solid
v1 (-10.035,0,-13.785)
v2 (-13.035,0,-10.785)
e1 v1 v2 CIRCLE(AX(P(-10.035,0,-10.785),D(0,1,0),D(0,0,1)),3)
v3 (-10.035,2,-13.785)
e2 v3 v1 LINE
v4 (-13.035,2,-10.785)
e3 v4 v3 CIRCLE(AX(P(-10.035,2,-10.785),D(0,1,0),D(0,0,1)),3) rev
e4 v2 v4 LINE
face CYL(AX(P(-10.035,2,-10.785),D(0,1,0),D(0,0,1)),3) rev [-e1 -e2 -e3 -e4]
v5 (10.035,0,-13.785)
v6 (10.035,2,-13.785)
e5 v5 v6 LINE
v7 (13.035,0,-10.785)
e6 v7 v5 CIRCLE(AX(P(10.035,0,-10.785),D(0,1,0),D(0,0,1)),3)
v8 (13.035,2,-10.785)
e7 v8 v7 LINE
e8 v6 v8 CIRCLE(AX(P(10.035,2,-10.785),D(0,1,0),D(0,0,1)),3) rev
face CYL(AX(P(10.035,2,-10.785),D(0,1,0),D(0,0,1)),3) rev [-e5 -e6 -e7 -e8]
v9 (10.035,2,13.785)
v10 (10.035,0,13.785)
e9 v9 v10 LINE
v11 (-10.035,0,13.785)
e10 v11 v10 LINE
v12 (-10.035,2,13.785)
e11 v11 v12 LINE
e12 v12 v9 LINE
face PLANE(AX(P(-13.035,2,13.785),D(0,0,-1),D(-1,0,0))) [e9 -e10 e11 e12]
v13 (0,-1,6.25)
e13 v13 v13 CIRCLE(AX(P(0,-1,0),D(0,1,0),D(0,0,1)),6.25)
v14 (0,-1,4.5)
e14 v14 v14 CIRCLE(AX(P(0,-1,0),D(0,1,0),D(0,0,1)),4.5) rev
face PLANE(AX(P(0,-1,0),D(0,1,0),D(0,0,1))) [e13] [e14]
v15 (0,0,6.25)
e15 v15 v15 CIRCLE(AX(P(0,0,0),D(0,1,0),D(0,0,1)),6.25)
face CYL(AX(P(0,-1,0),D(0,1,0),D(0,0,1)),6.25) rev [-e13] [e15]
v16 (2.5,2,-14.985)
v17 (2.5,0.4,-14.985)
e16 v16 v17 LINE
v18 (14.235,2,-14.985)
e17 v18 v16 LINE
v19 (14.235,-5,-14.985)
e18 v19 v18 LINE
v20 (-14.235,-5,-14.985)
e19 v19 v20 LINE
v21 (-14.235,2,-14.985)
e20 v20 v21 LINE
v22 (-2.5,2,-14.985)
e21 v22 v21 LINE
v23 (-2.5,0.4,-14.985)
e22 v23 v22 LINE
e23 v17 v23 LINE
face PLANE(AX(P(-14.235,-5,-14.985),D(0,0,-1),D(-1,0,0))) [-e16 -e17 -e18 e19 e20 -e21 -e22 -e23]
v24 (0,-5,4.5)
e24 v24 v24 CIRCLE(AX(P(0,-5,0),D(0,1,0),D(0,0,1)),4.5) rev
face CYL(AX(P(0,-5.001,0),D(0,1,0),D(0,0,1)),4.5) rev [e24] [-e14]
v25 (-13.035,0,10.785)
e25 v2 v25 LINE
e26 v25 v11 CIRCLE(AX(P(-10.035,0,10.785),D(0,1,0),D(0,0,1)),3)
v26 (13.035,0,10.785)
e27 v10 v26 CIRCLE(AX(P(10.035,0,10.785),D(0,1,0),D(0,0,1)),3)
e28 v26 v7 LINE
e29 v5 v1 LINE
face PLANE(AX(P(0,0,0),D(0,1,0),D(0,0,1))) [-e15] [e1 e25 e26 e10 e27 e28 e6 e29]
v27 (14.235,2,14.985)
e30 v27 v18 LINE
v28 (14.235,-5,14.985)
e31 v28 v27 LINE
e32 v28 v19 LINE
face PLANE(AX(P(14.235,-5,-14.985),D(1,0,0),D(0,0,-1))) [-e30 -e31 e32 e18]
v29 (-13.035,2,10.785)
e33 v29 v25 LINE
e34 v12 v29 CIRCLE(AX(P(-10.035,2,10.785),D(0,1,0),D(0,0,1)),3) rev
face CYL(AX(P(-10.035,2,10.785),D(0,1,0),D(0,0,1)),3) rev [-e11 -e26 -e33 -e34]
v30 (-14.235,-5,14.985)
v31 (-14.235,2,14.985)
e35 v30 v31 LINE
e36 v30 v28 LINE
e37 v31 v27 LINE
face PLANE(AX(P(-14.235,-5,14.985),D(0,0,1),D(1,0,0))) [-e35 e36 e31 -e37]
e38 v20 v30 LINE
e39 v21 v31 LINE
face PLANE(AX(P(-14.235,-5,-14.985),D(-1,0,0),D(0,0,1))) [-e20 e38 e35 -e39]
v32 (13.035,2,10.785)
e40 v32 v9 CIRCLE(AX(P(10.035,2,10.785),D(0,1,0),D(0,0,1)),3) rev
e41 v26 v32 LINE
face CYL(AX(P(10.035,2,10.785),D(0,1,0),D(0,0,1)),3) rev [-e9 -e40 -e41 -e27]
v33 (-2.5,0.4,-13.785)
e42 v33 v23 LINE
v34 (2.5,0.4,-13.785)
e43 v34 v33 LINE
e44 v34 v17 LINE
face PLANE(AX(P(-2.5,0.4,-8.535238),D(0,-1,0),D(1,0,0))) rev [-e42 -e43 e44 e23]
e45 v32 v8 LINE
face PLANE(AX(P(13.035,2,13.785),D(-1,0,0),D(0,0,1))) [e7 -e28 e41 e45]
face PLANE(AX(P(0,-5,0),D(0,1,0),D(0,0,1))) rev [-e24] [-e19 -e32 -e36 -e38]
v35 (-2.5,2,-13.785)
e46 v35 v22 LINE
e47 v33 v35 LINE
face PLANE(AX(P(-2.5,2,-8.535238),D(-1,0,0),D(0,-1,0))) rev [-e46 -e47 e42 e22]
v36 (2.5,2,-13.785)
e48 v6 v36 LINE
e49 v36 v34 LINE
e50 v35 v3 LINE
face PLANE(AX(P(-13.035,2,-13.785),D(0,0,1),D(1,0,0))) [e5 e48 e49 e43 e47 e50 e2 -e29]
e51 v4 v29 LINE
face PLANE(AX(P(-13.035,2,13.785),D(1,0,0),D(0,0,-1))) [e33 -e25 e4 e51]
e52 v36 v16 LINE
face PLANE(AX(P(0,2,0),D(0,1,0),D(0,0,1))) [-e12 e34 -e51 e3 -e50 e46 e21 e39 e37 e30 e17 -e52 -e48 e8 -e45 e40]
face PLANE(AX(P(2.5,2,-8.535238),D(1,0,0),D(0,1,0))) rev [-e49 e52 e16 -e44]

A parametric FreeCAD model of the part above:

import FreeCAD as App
import Part
import Sketcher
Q = App.Units.Quantity


def edges_at(feature, points):
    """Names of the edges that pass closest to the given points."""
    edges = feature.Shape.Edges
    near = lambda p: min(range(len(edges)), key=lambda i: edges[i].distToShape(Part.Vertex(*p))[0])
    return sorted({f"Edge{near(p) + 1}" for p in points})

doc = App.newDocument("Part")
body = doc.addObject("PartDesign::Body", "Body")

# Sketch on XZ plane
sketch1 = body.newObject("Sketcher::SketchObject", "Sketch")
sketch1.AttachmentSupport = (doc.getObject("XZ_Plane"), [""])
sketch1.MapMode = "FlatFace"
sketch1.addGeometry([
    Part.LineSegment(App.Vector(-14, -15, 0), App.Vector(-14, 15, 0)),
    Part.LineSegment(App.Vector(-14, 15, 0), App.Vector(14, 15, 0)),
    Part.LineSegment(App.Vector(14, 15, 0), App.Vector(14, -15, 0)),
    Part.LineSegment(App.Vector(14, -15, 0), App.Vector(-14, -15, 0)),
], False)
sketch1.addConstraint([
    Sketcher.Constraint("Coincident", 0, 2, 1, 1),
    Sketcher.Constraint("Coincident", 1, 2, 2, 1),
    Sketcher.Constraint("Coincident", 2, 2, 3, 1),
    Sketcher.Constraint("Coincident", 3, 2, 0, 1),
    Sketcher.Constraint("Vertical", 0),
    Sketcher.Constraint("Horizontal", 1),
    Sketcher.Constraint("Vertical", 2),
    Sketcher.Constraint("Horizontal", 3),
    Sketcher.Constraint("Symmetric", 0, 2, 2, 2, -1, 1),
    Sketcher.Constraint("DistanceX", 1, 1, 1, 2, Q("28.47 mm")),
    Sketcher.Constraint("DistanceY", 0, 1, 0, 2, Q("29.97 mm")),
])
pad1 = body.newObject("PartDesign::Pad", "Pad")
pad1.Profile = sketch1
pad1.Length = 5

# Sketch on XZ plane
sketch2 = body.newObject("Sketcher::SketchObject", "Sketch001")
sketch2.AttachmentSupport = (doc.getObject("XZ_Plane"), [""])
sketch2.MapMode = "FlatFace"
sketch2.addGeometry(Part.Circle(App.Vector(0, 0, 0), App.Vector(0, 0, 1), 4.5), False)
sketch2.addConstraint([
    Sketcher.Constraint("Coincident", 0, 3, -1, 1),
    Sketcher.Constraint("Diameter", 0, Q("9 mm")),
])
pocket1 = body.newObject("PartDesign::Pocket", "Pocket")
pocket1.Profile = sketch2
pocket1.Type = "UpToFirst"
pocket1.Reversed = True

# Sketch on XZ plane
sketch3 = body.newObject("Sketcher::SketchObject", "Sketch002")
sketch3.AttachmentSupport = (doc.getObject("XZ_Plane"), [""])
sketch3.MapMode = "FlatFace"
sketch3.addGeometry([
    Part.LineSegment(App.Vector(-14, -15, 0), App.Vector(-14, 15, 0)),  # 0
    Part.LineSegment(App.Vector(-14, 15, 0), App.Vector(14, 15, 0)),  # 1
    Part.LineSegment(App.Vector(14, 15, 0), App.Vector(14, -15, 0)),  # 2
    Part.LineSegment(App.Vector(14, -15, 0), App.Vector(-14, -15, 0)),  # 3
    Part.LineSegment(App.Vector(13, 14, 0), App.Vector(-13, 14, 0)),  # 4
    Part.LineSegment(App.Vector(-13, 14, 0), App.Vector(-13, -14, 0)),  # 5
    Part.LineSegment(App.Vector(-13, -14, 0), App.Vector(13, -14, 0)),  # 6
    Part.LineSegment(App.Vector(13, -14, 0), App.Vector(13, 14, 0)),  # 7
], False)
sketch3.addConstraint([
    Sketcher.Constraint("Coincident", 0, 2, 1, 1),
    Sketcher.Constraint("Coincident", 1, 2, 2, 1),
    Sketcher.Constraint("Coincident", 2, 2, 3, 1),
    Sketcher.Constraint("Coincident", 3, 2, 0, 1),
    Sketcher.Constraint("Coincident", 4, 2, 5, 1),
    Sketcher.Constraint("Coincident", 5, 2, 6, 1),
    Sketcher.Constraint("Coincident", 6, 2, 7, 1),
    Sketcher.Constraint("Coincident", 7, 2, 4, 1),
    Sketcher.Constraint("Vertical", 0),
    Sketcher.Constraint("Horizontal", 1),
    Sketcher.Constraint("Vertical", 2),
    Sketcher.Constraint("Horizontal", 3),
    Sketcher.Constraint("Horizontal", 4),
    Sketcher.Constraint("Vertical", 5),
    Sketcher.Constraint("Horizontal", 6),
    Sketcher.Constraint("Vertical", 7),
    Sketcher.Constraint("Symmetric", 0, 2, 2, 2, -1, 1),
    Sketcher.Constraint("Symmetric", 4, 2, 6, 2, -1, 1),
    Sketcher.Constraint("DistanceX", 1, 1, 1, 2, Q("28.47 mm")),
    Sketcher.Constraint("DistanceX", 4, 2, 4, 1, Q("26.07 mm")),
    Sketcher.Constraint("DistanceY", 0, 1, 0, 2, Q("29.97 mm")),
    Sketcher.Constraint("DistanceY", 5, 2, 5, 1, Q("27.57 mm")),
])
pad2 = body.newObject("PartDesign::Pad", "Pad001")
pad2.Profile = sketch3
pad2.Length = 2
pad2.Reversed = True

# Sketch on XZ plane
sketch4 = body.newObject("Sketcher::SketchObject", "Sketch003")
sketch4.AttachmentSupport = (doc.getObject("XZ_Plane"), [""])
sketch4.MapMode = "FlatFace"
sketch4.addGeometry(Part.Circle(App.Vector(0, 0, 0), App.Vector(0, 0, 1), 6), False)
sketch4.addConstraint([
    Sketcher.Constraint("Coincident", 0, 3, -1, 1),
    Sketcher.Constraint("Diameter", 0, Q("12.5 mm")),
])
pocket2 = body.newObject("PartDesign::Pocket", "Pocket001")
pocket2.Profile = sketch4
pocket2.Length = 1
pocket2.Reversed = True
doc.recompute()

fillet = body.newObject("PartDesign::Fillet", "Fillet")
fillet.Base = (pocket2, edges_at(pocket2, [
    (13.035, 1, -13.785),
    (-13.035, 1, -13.785),
    (-13.035, 1, 13.785),
    (13.035, 1, 13.785),
]))
fillet.Radius = 3

# Sketch on XY plane
sketch5 = body.newObject("Sketcher::SketchObject", "Sketch004")
sketch5.AttachmentSupport = (doc.getObject("XY_Plane"), [""])
sketch5.MapMode = "FlatFace"
sketch5.AttachmentOffset = App.Placement(App.Vector(0, 0, -14.985), App.Rotation())
sketch5.addGeometry([
    Part.LineSegment(App.Vector(2.5, 2, 0), App.Vector(2.5, 0.4, 0)),
    Part.LineSegment(App.Vector(2.5, 0.4, 0), App.Vector(-2.5, 0.4, 0)),
    Part.LineSegment(App.Vector(-2.5, 0.4, 0), App.Vector(-2.5, 2, 0)),
    Part.LineSegment(App.Vector(-2.5, 2, 0), App.Vector(2.5, 2, 0)),
], False)
sketch5.addConstraint([
    Sketcher.Constraint("Coincident", 0, 2, 1, 1),
    Sketcher.Constraint("Coincident", 1, 2, 2, 1),
    Sketcher.Constraint("Coincident", 2, 2, 3, 1),
    Sketcher.Constraint("Coincident", 3, 2, 0, 1),
    Sketcher.Constraint("Vertical", 0),
    Sketcher.Constraint("Horizontal", 1),
    Sketcher.Constraint("Vertical", 2),
    Sketcher.Constraint("Horizontal", 3),
    Sketcher.Constraint("DistanceX", 1, 2, 1, 1, Q("5 mm")),
    Sketcher.Constraint("DistanceY", 0, 2, 0, 1, Q("1.6 mm")),
    Sketcher.Constraint("DistanceY", -1, 1, 2, 2, Q("2 mm")),
    Sketcher.Constraint("DistanceX", -1, 1, 0, 2, Q("2.5 mm")),
])
pocket3 = body.newObject("PartDesign::Pocket", "Pocket002")
pocket3.Profile = sketch5
pocket3.Length = 1.2
pocket3.Reversed = True

doc.recompute()
